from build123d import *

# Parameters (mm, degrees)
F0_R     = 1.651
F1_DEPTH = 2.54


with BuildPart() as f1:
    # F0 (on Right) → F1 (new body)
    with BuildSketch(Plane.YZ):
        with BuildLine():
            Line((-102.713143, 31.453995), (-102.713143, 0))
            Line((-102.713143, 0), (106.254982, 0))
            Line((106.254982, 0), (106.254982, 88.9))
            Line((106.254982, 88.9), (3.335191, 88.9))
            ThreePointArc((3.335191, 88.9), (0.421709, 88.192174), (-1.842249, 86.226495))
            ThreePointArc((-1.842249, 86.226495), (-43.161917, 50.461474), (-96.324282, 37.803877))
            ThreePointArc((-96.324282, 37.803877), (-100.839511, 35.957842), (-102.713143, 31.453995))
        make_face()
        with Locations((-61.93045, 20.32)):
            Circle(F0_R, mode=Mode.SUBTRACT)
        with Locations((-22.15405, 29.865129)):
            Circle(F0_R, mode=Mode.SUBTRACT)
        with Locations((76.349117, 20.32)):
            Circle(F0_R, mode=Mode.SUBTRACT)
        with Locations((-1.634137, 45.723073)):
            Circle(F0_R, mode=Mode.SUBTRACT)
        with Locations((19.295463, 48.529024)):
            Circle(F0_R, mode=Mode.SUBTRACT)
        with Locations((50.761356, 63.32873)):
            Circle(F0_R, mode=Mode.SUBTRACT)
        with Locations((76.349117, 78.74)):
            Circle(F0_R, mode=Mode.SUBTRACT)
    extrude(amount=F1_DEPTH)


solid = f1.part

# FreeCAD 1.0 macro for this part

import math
import FreeCAD as App
import Part
import Sketcher

V = App.Vector
Q = App.Units.Quantity

doc = App.newDocument("Part")
body = doc.addObject("PartDesign::Body", "Body")

# Sketch on YZ plane
sketch1 = body.newObject("Sketcher::SketchObject", "Sketch")
sketch1.AttachmentSupport = (doc.getObject("YZ_Plane"), [""])
sketch1.MapMode = "FlatFace"
sketch1.addGeometry([
    Part.LineSegment(V(-102.713143, 31.453995, 0), V(-102.713143, 0, 0)),  # 0
    Part.LineSegment(V(-102.713143, 0, 0), V(106.254982, 0, 0)),  # 1
    Part.LineSegment(V(106.254982, 0, 0), V(106.254982, 88.9, 0)),  # 2
    Part.LineSegment(V(106.254982, 88.9, 0), V(3.335191, 88.9, 0)),  # 3
    Part.ArcOfCircle(Part.Circle(V(3.335189, 82.550003, 0), V(0, 0, 1), 6.349997), math.radians(89.999986), math.radians(144.62149)),  # 4
    Part.ArcOfCircle(Part.Circle(V(-95.620399, 152.818268, 0), V(0, 0, 1), 115.016545), math.radians(-90.350643), math.radians(-35.378524)),  # 5
    Part.ArcOfCircle(Part.Circle(V(-96.363143, 31.453996, 0), V(0, 0, 1), 6.35), math.radians(89.649357), math.radians(180.000008)),  # 6
    Part.Circle(V(-61.93045, 20.32, 0), V(0, 0, 1), 1.651),  # 7
    Part.Circle(V(-22.15405, 29.865129, 0), V(0, 0, 1), 1.651),  # 8
    Part.Circle(V(-1.634137, 45.723073, 0), V(0, 0, 1), 1.651),  # 9
    Part.Circle(V(76.349117, 20.32, 0), V(0, 0, 1), 1.651),  # 10
    Part.Circle(V(19.295463, 48.529024, 0), V(0, 0, 1), 1.651),  # 11
    Part.Circle(V(50.761356, 63.32873, 0), V(0, 0, 1), 1.651),  # 12
    Part.Circle(V(76.349117, 78.74, 0), V(0, 0, 1), 1.651),  # 13
], False)
sketch1.addConstraint([
    Sketcher.Constraint("Coincident", 0, 2, 1, 1),
    Sketcher.Constraint("Coincident", 1, 2, 2, 1),
    Sketcher.Constraint("Coincident", 2, 2, 3, 1),
    Sketcher.Constraint("Tangent", 3, 2, 4, 1),
    Sketcher.Constraint("Tangent", 4, 2, 5, 2),
    Sketcher.Constraint("Tangent", 5, 1, 6, 1),
    Sketcher.Constraint("Tangent", 6, 2, 0, 1),
    Sketcher.Constraint("Vertical", 0),
    Sketcher.Constraint("Horizontal", 1),
    Sketcher.Constraint("Vertical", 2),
    Sketcher.Constraint("Horizontal", 3),
    Sketcher.Constraint("Equal", 7, 8),
    Sketcher.Constraint("Equal", 8, 9),
    Sketcher.Constraint("Equal", 9, 10),
    Sketcher.Constraint("Equal", 10, 11),
    Sketcher.Constraint("Equal", 11, 12),
    Sketcher.Constraint("Equal", 12, 13),
    Sketcher.Constraint("PointOnObject", 0, 2, -1),
    Sketcher.Constraint("Horizontal", 7, 3, 10, 3),
    Sketcher.Constraint("Vertical", 10, 3, 13, 3),
    Sketcher.Constraint("Diameter", 7, Q("0.13 in")),
    Sketcher.Constraint("Radius", 4, Q("0.2499999 in")),
    Sketcher.Constraint("Radius", 6, Q("0.25 in")),
    Sketcher.Constraint("DistanceY", 2, 1, 2, 2, Q("3.5 in")),
    Sketcher.Constraint("DistanceY", -1, 1, 7, 3, Q("0.8 in")),
    Sketcher.Constraint("DistanceY", -1, 1, 13, 3, Q("3.1 in")),
    Sketcher.Constraint("DistanceX", 7, 3, 8, 3, Q("1.566 in")),
    Sketcher.Constraint("DistanceX", 9, 3, 11, 3, Q("0.824 in")),
    Sketcher.Constraint("Radius", 5, 115.016545),
    Sketcher.Constraint("DistanceX", 3, 2, 3, 1, 102.919791),
    Sketcher.Constraint("DistanceX", 5, 3, -1, 1, 95.620399),
    Sketcher.Constraint("DistanceY", 8, 3, 12, 3, 33.463601),
    Sketcher.Constraint("DistanceX", 1, 1, 1, 2, 208.968125),
    Sketcher.Constraint("DistanceY", 0, 2, 0, 1, 31.453995),
    Sketcher.Constraint("DistanceX", 7, 3, -1, 1, 61.93045),
    Sketcher.Constraint("DistanceY", -1, 1, 8, 3, 29.865129),
    Sketcher.Constraint("DistanceY", 9, 3, 4, 3, 36.82693),
    Sketcher.Constraint("DistanceX", 5, 3, 9, 3, 93.986262),
    Sketcher.Constraint("DistanceX", 6, 3, 10, 3, 172.71226),
    Sketcher.Constraint("DistanceY", 9, 3, 11, 3, 2.805951),
    Sketcher.Constraint("DistanceX", 12, 3, 10, 3, 25.587761),
])
pad1 = body.newObject("PartDesign::Pad", "Pad")
pad1.Profile = sketch1
pad1.Length = Q("0.1 in")

doc.recompute()
